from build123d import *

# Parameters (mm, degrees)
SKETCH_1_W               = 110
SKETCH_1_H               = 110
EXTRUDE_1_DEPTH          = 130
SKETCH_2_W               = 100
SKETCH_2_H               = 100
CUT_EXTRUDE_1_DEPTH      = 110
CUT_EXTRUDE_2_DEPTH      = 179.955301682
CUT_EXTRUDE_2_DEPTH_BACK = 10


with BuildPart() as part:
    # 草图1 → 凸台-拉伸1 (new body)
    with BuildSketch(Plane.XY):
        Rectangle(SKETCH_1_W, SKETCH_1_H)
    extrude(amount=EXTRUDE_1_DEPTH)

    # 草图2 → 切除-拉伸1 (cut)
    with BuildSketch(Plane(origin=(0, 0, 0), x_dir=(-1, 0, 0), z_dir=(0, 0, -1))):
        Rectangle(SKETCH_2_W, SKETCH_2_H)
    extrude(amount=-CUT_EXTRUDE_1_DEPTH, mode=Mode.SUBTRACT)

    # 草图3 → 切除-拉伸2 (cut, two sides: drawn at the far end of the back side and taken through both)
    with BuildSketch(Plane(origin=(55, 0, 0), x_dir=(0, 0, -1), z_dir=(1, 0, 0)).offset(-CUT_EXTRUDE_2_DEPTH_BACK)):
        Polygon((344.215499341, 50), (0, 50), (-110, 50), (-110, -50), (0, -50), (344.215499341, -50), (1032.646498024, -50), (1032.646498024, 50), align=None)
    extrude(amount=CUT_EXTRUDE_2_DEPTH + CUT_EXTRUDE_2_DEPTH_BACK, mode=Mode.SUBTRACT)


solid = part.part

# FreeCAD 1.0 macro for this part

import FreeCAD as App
import Part
import Sketcher


def add_polygon(sketch, points):
    """Adds a closed chain of lines whose ends are joined by coincident constraints."""
    first, n = sketch.GeometryCount, len(points)
    for a, b in zip(points, points[1:] + points[:1]):
        sketch.addGeometry(Part.LineSegment(App.Vector(*a, 0), App.Vector(*b, 0)), False)
    for i in range(n):
        sketch.addConstraint(Sketcher.Constraint("Coincident", first + i, 2, first + (i + 1) % n, 1))

doc = App.newDocument("Part")
body = doc.addObject("PartDesign::Body", "Body")

# Sketch on XY plane
sketch1 = doc.addObject("Sketcher::SketchObject", "Sketch")
body.addObject(sketch1)
sketch1.AttachmentSupport = (doc.XY_Plane, [""])
sketch1.MapMode = "FlatFace"
add_polygon(sketch1, [(-55, 55), (-55, -55), (55, -55), (55, 55)])  # lines 0-3
sketch1.addConstraint(Sketcher.Constraint("Vertical", 0))
sketch1.addConstraint(Sketcher.Constraint("Horizontal", 1))
sketch1.addConstraint(Sketcher.Constraint("Vertical", 2))
sketch1.addConstraint(Sketcher.Constraint("Horizontal", 3))
sketch1.addConstraint(Sketcher.Constraint("Symmetric", 0, 2, 2, 2, -1, 1))
sketch1.addConstraint(Sketcher.Constraint("Equal", 3, 0))
sketch1.addConstraint(Sketcher.Constraint("DistanceX", 1, 1, 1, 2, 110.0))
pad1 = doc.addObject("PartDesign::Pad", "Pad")
body.addObject(pad1)
pad1.Profile = sketch1
pad1.Length = 130

# Sketch on XY plane
sketch2 = doc.addObject("Sketcher::SketchObject", "Sketch001")
body.addObject(sketch2)
sketch2.AttachmentSupport = (doc.XY_Plane, [""])
sketch2.MapMode = "FlatFace"
add_polygon(sketch2, [(50, 50), (50, -50), (-50, -50), (-50, 50)])  # lines 0-3
sketch2.addConstraint(Sketcher.Constraint("Vertical", 0))
sketch2.addConstraint(Sketcher.Constraint("Horizontal", 1))
sketch2.addConstraint(Sketcher.Constraint("Vertical", 2))
sketch2.addConstraint(Sketcher.Constraint("Horizontal", 3))
sketch2.addConstraint(Sketcher.Constraint("Symmetric", 0, 2, 2, 2, -1, 1))
sketch2.addConstraint(Sketcher.Constraint("Equal", 3, 0))
sketch2.addConstraint(Sketcher.Constraint("DistanceX", 1, 2, 1, 1, 100.0))
pocket1 = doc.addObject("PartDesign::Pocket", "Pocket")
body.addObject(pocket1)
pocket1.Profile = sketch2
pocket1.Length = 110
pocket1.Reversed = True

# Sketch on YZ plane
sketch3 = doc.addObject("Sketcher::SketchObject", "Sketch002")
body.addObject(sketch3)
sketch3.AttachmentSupport = (doc.YZ_Plane, [""])
sketch3.MapMode = "FlatFace"
sketch3.AttachmentOffset = App.Placement(App.Vector(0, 0, 55), App.Rotation())
add_polygon(sketch3, [(50, 110), (-50, 110), (-50, -1033), (50, -1033)])  # lines 0-3
sketch3.addConstraint(Sketcher.Constraint("Horizontal", 0))
sketch3.addConstraint(Sketcher.Constraint("Vertical", 1))
sketch3.addConstraint(Sketcher.Constraint("Horizontal", 2))
sketch3.addConstraint(Sketcher.Constraint("Vertical", 3))
sketch3.addConstraint(Sketcher.Constraint("DistanceX", 0, 2, 0, 1, 100.0))
sketch3.addConstraint(Sketcher.Constraint("DistanceX", 0, 2, -1, 1, 50.0))
sketch3.addConstraint(Sketcher.Constraint("DistanceY", -1, 1, 0, 2, 110.0))
sketch3.addConstraint(Sketcher.Constraint("DistanceY", 1, 2, 1, 1, 1142.646498))
pocket2 = doc.addObject("PartDesign::Pocket", "Pocket001")
body.addObject(pocket2)
pocket2.Profile = sketch3
pocket2.Type = "TwoLengths"
pocket2.Length = 179.955302
pocket2.Length2 = 10
pocket2.Reversed = True

doc.recompute()
